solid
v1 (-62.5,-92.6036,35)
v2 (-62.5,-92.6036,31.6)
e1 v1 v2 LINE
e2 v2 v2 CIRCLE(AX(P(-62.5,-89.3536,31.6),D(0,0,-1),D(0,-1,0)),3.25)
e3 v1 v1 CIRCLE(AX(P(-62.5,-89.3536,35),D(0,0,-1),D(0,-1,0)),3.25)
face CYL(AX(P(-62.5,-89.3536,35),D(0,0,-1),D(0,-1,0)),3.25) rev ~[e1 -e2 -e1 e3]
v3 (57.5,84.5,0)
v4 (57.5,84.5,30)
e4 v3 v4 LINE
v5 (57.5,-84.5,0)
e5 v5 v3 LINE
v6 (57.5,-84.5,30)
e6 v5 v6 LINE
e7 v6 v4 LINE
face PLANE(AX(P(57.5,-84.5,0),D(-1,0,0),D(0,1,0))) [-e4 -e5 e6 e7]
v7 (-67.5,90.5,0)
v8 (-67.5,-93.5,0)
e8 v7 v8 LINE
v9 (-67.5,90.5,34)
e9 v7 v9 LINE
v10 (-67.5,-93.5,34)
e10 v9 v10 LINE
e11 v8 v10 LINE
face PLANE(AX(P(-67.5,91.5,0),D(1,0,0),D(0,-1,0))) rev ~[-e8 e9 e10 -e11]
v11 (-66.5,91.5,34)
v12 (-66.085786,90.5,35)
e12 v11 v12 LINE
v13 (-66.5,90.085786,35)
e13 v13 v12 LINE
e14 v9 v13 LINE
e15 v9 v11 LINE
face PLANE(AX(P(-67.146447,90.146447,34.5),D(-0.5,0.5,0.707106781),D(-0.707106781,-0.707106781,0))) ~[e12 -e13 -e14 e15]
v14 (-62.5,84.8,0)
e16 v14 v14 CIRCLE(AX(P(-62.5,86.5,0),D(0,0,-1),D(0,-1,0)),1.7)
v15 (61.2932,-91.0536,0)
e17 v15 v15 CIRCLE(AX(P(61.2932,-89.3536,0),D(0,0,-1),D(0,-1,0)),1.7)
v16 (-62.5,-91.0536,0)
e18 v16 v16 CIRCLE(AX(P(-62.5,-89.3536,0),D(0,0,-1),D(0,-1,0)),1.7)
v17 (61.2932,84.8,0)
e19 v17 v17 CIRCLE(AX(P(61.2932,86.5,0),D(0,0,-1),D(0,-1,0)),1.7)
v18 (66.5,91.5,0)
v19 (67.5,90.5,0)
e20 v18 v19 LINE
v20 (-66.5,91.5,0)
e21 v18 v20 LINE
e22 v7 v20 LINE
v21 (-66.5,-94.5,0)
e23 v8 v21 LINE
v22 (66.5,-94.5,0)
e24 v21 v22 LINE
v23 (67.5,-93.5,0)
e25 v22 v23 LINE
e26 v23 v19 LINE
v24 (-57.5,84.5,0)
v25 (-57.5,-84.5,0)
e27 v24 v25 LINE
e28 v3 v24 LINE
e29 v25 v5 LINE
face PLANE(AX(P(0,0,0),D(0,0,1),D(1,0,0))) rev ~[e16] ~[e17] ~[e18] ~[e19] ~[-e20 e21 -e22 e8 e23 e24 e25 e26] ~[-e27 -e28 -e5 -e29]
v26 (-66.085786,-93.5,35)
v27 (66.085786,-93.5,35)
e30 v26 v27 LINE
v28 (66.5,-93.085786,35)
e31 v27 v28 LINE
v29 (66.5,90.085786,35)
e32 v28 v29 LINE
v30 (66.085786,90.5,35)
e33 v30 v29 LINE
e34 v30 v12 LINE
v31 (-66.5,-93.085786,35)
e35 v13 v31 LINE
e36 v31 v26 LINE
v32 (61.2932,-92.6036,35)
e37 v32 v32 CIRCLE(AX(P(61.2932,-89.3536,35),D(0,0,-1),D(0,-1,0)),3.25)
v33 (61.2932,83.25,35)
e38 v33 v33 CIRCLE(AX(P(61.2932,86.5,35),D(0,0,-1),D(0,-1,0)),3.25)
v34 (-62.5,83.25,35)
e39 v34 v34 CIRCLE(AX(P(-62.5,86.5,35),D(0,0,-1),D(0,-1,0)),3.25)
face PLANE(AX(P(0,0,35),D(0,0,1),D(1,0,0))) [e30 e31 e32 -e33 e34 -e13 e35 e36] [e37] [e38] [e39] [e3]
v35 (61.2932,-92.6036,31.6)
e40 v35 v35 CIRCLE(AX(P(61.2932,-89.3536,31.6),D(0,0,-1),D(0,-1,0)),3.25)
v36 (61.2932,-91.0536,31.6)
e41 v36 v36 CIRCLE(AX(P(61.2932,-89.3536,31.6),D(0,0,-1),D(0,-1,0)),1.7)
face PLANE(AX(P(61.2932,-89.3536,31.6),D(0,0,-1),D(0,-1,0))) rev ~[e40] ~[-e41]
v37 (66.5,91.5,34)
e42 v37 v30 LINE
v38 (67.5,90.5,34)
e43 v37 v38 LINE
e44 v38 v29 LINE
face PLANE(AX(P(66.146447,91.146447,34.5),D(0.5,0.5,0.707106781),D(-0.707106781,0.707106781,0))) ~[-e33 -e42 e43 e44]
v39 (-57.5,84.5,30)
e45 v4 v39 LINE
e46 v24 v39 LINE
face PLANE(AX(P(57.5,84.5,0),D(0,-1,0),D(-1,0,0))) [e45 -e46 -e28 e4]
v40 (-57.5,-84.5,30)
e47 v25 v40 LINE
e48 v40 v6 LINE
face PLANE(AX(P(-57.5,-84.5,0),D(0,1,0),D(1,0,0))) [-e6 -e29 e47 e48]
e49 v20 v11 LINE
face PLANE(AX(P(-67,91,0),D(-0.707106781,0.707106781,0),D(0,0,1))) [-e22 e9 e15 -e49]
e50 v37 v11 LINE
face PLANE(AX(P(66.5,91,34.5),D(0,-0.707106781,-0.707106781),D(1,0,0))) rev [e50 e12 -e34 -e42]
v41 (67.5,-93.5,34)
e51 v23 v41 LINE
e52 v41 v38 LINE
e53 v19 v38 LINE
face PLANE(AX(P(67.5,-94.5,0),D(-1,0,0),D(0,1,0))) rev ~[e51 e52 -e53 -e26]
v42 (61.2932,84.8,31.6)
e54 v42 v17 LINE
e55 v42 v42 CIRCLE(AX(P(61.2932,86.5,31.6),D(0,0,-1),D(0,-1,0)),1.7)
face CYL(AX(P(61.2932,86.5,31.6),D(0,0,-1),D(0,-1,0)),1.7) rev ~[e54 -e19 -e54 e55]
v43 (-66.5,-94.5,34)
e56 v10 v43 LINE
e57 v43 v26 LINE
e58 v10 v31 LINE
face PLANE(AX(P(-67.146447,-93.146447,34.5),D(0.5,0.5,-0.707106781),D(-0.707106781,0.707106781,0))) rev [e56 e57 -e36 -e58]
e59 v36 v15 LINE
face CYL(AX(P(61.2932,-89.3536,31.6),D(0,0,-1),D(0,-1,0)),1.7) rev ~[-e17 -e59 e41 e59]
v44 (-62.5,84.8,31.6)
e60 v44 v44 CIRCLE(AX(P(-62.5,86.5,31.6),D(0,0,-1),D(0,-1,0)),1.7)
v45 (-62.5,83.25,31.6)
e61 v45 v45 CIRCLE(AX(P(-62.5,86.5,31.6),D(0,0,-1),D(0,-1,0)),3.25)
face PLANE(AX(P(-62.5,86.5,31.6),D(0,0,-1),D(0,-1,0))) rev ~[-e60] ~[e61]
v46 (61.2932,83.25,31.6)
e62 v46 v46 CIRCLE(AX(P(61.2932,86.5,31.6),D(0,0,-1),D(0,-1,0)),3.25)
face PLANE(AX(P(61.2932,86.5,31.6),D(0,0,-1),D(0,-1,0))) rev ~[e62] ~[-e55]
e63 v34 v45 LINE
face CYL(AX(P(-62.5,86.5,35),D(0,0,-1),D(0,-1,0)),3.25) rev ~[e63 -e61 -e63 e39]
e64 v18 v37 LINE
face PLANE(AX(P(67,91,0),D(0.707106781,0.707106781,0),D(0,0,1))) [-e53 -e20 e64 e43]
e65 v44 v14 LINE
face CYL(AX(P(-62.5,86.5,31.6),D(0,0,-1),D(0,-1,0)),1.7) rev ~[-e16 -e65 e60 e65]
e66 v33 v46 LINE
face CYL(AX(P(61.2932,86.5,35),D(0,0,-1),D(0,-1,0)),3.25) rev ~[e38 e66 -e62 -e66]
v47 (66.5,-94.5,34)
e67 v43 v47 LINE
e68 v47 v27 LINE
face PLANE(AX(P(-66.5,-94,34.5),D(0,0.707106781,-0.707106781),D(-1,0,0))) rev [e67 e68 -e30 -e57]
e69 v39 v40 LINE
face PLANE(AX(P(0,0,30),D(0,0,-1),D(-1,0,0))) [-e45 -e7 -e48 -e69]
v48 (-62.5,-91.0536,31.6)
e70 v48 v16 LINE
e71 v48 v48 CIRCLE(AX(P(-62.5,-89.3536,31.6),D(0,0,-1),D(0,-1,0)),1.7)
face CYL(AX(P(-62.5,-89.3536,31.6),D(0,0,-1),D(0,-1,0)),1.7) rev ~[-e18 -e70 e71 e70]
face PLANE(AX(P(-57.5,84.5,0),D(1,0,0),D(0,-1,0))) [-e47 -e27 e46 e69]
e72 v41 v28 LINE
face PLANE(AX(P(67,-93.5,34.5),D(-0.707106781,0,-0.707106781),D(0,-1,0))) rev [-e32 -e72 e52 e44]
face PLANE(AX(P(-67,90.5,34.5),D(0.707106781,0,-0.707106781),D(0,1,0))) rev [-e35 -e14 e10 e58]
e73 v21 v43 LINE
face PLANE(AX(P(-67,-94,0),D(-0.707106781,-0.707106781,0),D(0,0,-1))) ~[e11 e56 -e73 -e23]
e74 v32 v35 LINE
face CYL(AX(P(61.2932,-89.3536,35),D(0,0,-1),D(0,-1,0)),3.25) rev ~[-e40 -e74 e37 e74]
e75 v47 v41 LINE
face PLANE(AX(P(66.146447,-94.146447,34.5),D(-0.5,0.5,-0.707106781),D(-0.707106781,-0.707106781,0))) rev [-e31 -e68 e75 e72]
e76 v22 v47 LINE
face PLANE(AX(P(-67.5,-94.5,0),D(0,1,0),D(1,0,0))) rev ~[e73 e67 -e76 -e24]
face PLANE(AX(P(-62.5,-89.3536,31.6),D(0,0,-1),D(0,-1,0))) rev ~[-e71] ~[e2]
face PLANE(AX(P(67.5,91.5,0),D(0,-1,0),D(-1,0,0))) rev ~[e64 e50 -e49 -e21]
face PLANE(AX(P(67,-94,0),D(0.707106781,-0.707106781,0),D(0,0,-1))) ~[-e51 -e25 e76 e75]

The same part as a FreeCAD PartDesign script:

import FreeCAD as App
import Part
import Sketcher
from FreeCAD import Vector
Q = App.Units.Quantity


def edges_at(feature, points):
    """Names of the edges that pass closest to the given points."""
    edges = feature.Shape.Edges
    near = lambda p: min(range(len(edges)), key=lambda i: edges[i].distToShape(Part.Vertex(*p))[0])
    return sorted({f"Edge{near(p) + 1}" for p in points})


def add_polygon(sketch, points):
    """Adds a closed chain of lines whose ends are joined by coincident constraints."""
    first, n = sketch.GeometryCount, len(points)
    for a, b in zip(points, points[1:] + points[:1]):
        sketch.addGeometry(Part.LineSegment(App.Vector(*a, 0), App.Vector(*b, 0)), False)
    for i in range(n):
        sketch.addConstraint(Sketcher.Constraint("Coincident", first + i, 2, first + (i + 1) % n, 1))

doc = App.newDocument("Part")
body = doc.addObject("PartDesign::Body", "Body")

# Sketch on XY plane
sketch1 = doc.addObject("Sketcher::SketchObject", "Sketch")
body.addObject(sketch1)
sketch1.AttachmentSupport = (doc.XY_Plane, [""])
sketch1.MapMode = "FlatFace"
add_polygon(sketch1, [(-68, 92), (-68, -94), (68, -94), (68, 92)])  # lines 0-3
sketch1.addConstraint(Sketcher.Constraint("Vertical", 0))
sketch1.addConstraint(Sketcher.Constraint("Horizontal", 1))
sketch1.addConstraint(Sketcher.Constraint("Vertical", 2))
sketch1.addConstraint(Sketcher.Constraint("Horizontal", 3))
sketch1.addConstraint(Sketcher.Constraint("DistanceX", 1, 1, 1, 2, Q("135 mm")))
sketch1.addConstraint(Sketcher.Constraint("DistanceY", 0, 2, 0, 1, Q("186 mm")))
sketch1.addConstraint(Sketcher.Constraint("DistanceX", 0, 2, -1, 1, Q("67.5 mm")))
sketch1.addConstraint(Sketcher.Constraint("DistanceY", 0, 2, -1, 1, Q("94.5 mm")))
pad1 = doc.addObject("PartDesign::Pad", "Pad")
body.addObject(pad1)
pad1.Profile = sketch1
pad1.Length = 35

# Sketch on XY plane
sketch2 = doc.addObject("Sketcher::SketchObject", "Sketch001")
body.addObject(sketch2)
sketch2.AttachmentSupport = (doc.XY_Plane, [""])
sketch2.MapMode = "FlatFace"
sketch2.AttachmentOffset = App.Placement(Vector(0, 0, 35), App.Rotation())
sketch2.addGeometry(Part.Circle(Vector(-62.5, 86.5, 0), Vector(0, 0, 1), 1.7), False)
sketch2.addGeometry(Part.Circle(Vector(61.3, 86.5, 0), Vector(0, 0, 1), 1.7), False)
sketch2.addGeometry(Part.Circle(Vector(61.3, -89.4, 0), Vector(0, 0, 1), 1.7), False)
sketch2.addGeometry(Part.Circle(Vector(-62.5, -89.4, 0), Vector(0, 0, 1), 1.7), False)
sketch2.addConstraint(Sketcher.Constraint("Equal", 0, 1))
sketch2.addConstraint(Sketcher.Constraint("Equal", 1, 2))
sketch2.addConstraint(Sketcher.Constraint("Equal", 2, 3))
sketch2.addConstraint(Sketcher.Constraint("Horizontal", 0, 3, 1, 3))
sketch2.addConstraint(Sketcher.Constraint("Horizontal", 2, 3, 3, 3))
sketch2.addConstraint(Sketcher.Constraint("Vertical", 1, 3, 2, 3))
sketch2.addConstraint(Sketcher.Constraint("Vertical", 0, 3, 3, 3))
sketch2.addConstraint(Sketcher.Constraint("Diameter", 0, Q("3.4 mm")))
sketch2.addConstraint(Sketcher.Constraint("DistanceX", 0, 3, -1, 1, Q("62.5 mm")))
sketch2.addConstraint(Sketcher.Constraint("DistanceY", -1, 1, 0, 3, Q("86.5 mm")))
sketch2.addConstraint(Sketcher.Constraint("DistanceX", -1, 1, 1, 3, Q("61.2932 mm")))
sketch2.addConstraint(Sketcher.Constraint("DistanceY", 2, 3, -1, 1, Q("89.3536 mm")))
doc.recompute()
hole = doc.addObject("PartDesign::Hole", "Hole")
body.addObject(hole)
hole.Profile = sketch2
hole.ThreadType = "None"
hole.Diameter = 3.4
hole.DepthType = "ThroughAll"
hole.HoleCutType = "Counterbore"
hole.HoleCutDiameter = 6.5
hole.HoleCutDepth = 3.4

# Sketch on XY plane
sketch3 = doc.addObject("Sketcher::SketchObject", "Sketch002")
body.addObject(sketch3)
sketch3.AttachmentSupport = (doc.XY_Plane, [""])
sketch3.MapMode = "FlatFace"
add_polygon(sketch3, [(-58, 84), (58, 84), (58, -84), (-58, -84)])  # lines 0-3
sketch3.addConstraint(Sketcher.Constraint("Horizontal", 0))
sketch3.addConstraint(Sketcher.Constraint("Vertical", 1))
sketch3.addConstraint(Sketcher.Constraint("Horizontal", 2))
sketch3.addConstraint(Sketcher.Constraint("Vertical", 3))
sketch3.addConstraint(Sketcher.Constraint("Symmetric", 0, 2, 2, 2, -1, 1))
sketch3.addConstraint(Sketcher.Constraint("DistanceX", 0, 1, 0, 2, Q("115 mm")))
sketch3.addConstraint(Sketcher.Constraint("DistanceY", 1, 2, 1, 1, Q("169 mm")))
pocket1 = doc.addObject("PartDesign::Pocket", "Pocket")
body.addObject(pocket1)
pocket1.Profile = sketch3
pocket1.Length = 30
pocket1.Reversed = True
doc.recompute()

chamfer = doc.addObject("PartDesign::Chamfer", "Chamfer")
body.addObject(chamfer)
chamfer.Base = (pocket1, edges_at(pocket1, [
    (-67.5, -94.5, 17.5),
    (-67.5, 91.5, 17.5),
    (67.5, 91.5, 17.5),
    (67.5, -94.5, 17.5),
]))
chamfer.Size = 1
doc.recompute()

chamfer2 = doc.addObject("PartDesign::Chamfer", "Chamfer001")
body.addObject(chamfer2)
chamfer2.Base = (chamfer, edges_at(chamfer, [
    (-67.5, -1.5, 35),
    (0, 91.5, 35),
    (67.5, -1.5, 35),
    (0, -94.5, 35),
    (-67, -94, 35),
    (67, -94, 35),
    (67, 91, 35),
    (-67, 91, 35),
]))
chamfer2.Size = 1

doc.recompute()
